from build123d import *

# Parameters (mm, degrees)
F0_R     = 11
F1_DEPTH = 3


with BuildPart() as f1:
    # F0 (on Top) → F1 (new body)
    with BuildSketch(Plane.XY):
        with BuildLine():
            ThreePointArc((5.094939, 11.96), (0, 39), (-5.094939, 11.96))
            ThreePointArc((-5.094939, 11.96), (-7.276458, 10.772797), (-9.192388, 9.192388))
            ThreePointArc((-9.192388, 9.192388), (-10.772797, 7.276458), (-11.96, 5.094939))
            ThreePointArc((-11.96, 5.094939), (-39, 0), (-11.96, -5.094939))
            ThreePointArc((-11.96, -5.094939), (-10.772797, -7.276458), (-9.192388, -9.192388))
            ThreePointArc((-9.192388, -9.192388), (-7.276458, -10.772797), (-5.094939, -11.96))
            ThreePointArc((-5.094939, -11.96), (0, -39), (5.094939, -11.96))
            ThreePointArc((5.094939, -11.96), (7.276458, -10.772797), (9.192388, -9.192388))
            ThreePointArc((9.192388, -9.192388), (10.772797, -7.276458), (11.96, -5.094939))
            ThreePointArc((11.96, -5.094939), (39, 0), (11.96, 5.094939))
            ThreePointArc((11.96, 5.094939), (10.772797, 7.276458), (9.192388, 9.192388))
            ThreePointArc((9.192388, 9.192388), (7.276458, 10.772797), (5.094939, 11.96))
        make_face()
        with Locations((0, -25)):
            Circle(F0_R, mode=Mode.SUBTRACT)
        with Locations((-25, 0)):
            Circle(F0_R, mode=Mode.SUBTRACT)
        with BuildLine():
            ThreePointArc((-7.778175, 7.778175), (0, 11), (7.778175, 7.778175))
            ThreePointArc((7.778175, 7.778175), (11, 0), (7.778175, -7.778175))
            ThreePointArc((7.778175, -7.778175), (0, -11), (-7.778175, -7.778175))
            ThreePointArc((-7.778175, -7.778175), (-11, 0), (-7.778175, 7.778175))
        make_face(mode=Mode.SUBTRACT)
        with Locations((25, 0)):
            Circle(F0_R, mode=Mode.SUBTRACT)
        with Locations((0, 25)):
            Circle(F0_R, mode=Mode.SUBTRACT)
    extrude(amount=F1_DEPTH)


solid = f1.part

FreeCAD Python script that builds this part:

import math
import FreeCAD as App
import Part
import Sketcher
Q = App.Units.Quantity

doc = App.newDocument("Part")
body = doc.addObject("PartDesign::Body", "Body")

sketch1 = body.newObject("Sketcher::SketchObject", "Sketch")
sketch1.AttachmentSupport = (doc.getObject("XY_Plane"), [""])
sketch1.MapMode = "FlatFace"
sketch1.addGeometry([
    Part.ArcOfCircle(Part.Circle(App.Vector(0, 25, 0), App.Vector(0, 0, 1), 14), math.radians(-69), math.radians(249)),
    Part.ArcOfCircle(Part.Circle(App.Vector(0, 0, 0), App.Vector(0, 0, 1), 13), math.radians(113), math.radians(135)),
    Part.ArcOfCircle(Part.Circle(App.Vector(0, 0, 0), App.Vector(0, 0, 1), 13), math.radians(135), math.radians(157)),
    Part.ArcOfCircle(Part.Circle(App.Vector(-25, 0, 0), App.Vector(0, 0, 1), 14), math.radians(21), math.radians(339)),
    Part.ArcOfCircle(Part.Circle(App.Vector(0, 0, 0), App.Vector(0, 0, 1), 13), math.radians(-157), math.radians(-135)),
    Part.ArcOfCircle(Part.Circle(App.Vector(0, 0, 0), App.Vector(0, 0, 1), 13), math.radians(-135), math.radians(-113)),
    Part.ArcOfCircle(Part.Circle(App.Vector(0, -25, 0), App.Vector(0, 0, 1), 14), math.radians(111), math.radians(429)),
    Part.ArcOfCircle(Part.Circle(App.Vector(0, 0, 0), App.Vector(0, 0, 1), 13), math.radians(-67), math.radians(-45)),
    Part.ArcOfCircle(Part.Circle(App.Vector(0, 0, 0), App.Vector(0, 0, 1), 13), math.radians(-45), math.radians(-23)),
    Part.ArcOfCircle(Part.Circle(App.Vector(25, 0, 0), App.Vector(0, 0, 1), 14), math.radians(-159), math.radians(159)),
    Part.ArcOfCircle(Part.Circle(App.Vector(0, 0, 0), App.Vector(0, 0, 1), 13), math.radians(23), math.radians(45)),
    Part.ArcOfCircle(Part.Circle(App.Vector(0, 0, 0), App.Vector(0, 0, 1), 13), math.radians(45), math.radians(67)),
    Part.Circle(App.Vector(0, -25, 0), App.Vector(0, 0, 1), 11),
    Part.Circle(App.Vector(-25, 0, 0), App.Vector(0, 0, 1), 11),
    Part.ArcOfCircle(Part.Circle(App.Vector(0, 0, 0), App.Vector(0, 0, 1), 11), math.radians(135), math.radians(225)),
    Part.ArcOfCircle(Part.Circle(App.Vector(0, 0, 0), App.Vector(0, 0, 1), 11), math.radians(45), math.radians(135)),
    Part.ArcOfCircle(Part.Circle(App.Vector(0, 0, 0), App.Vector(0, 0, 1), 11), math.radians(-45), math.radians(45)),
    Part.ArcOfCircle(Part.Circle(App.Vector(0, 0, 0), App.Vector(0, 0, 1), 11), math.radians(-135), math.radians(-45)),
    Part.Circle(App.Vector(25, 0, 0), App.Vector(0, 0, 1), 11),
    Part.Circle(App.Vector(0, 25, 0), App.Vector(0, 0, 1), 11),
], False)
sketch1.addConstraint([
    Sketcher.Constraint("Coincident", 0, 2, 1, 1),
    Sketcher.Constraint("Tangent", 1, 2, 2, 1),
    Sketcher.Constraint("Coincident", 2, 2, 3, 1),
    Sketcher.Constraint("Coincident", 3, 2, 4, 1),
    Sketcher.Constraint("Tangent", 4, 2, 5, 1),
    Sketcher.Constraint("Coincident", 5, 2, 6, 1),
    Sketcher.Constraint("Coincident", 6, 2, 7, 1),
    Sketcher.Constraint("Tangent", 7, 2, 8, 1),
    Sketcher.Constraint("Coincident", 8, 2, 9, 1),
    Sketcher.Constraint("Coincident", 9, 2, 10, 1),
    Sketcher.Constraint("Tangent", 10, 2, 11, 1),
    Sketcher.Constraint("Coincident", 11, 2, 0, 1),
    Sketcher.Constraint("Tangent", 14, 1, 15, 2),
    Sketcher.Constraint("Tangent", 15, 1, 16, 2),
    Sketcher.Constraint("Tangent", 16, 1, 17, 2),
    Sketcher.Constraint("Tangent", 17, 1, 14, 2),
    Sketcher.Constraint("Coincident", 1, 3, -1, 1),
    Sketcher.Constraint("Coincident", 4, 3, -1, 1),
    Sketcher.Constraint("Coincident", 7, 3, -1, 1),
    Sketcher.Constraint("Coincident", 10, 3, -1, 1),
    Sketcher.Constraint("Coincident", 14, 3, -1, 1),
    Sketcher.Constraint("Coincident", 12, 3, 6, 3),
    Sketcher.Constraint("Coincident", 13, 3, 3, 3),
    Sketcher.Constraint("Coincident", 18, 3, 9, 3),
    Sketcher.Constraint("Coincident", 19, 3, 0, 3),
    Sketcher.Constraint("Equal", 1, 2),
    Sketcher.Constraint("Equal", 0, 3),
    Sketcher.Constraint("Equal", 2, 4),
    Sketcher.Constraint("Equal", 4, 5),
    Sketcher.Constraint("Equal", 3, 6),
    Sketcher.Constraint("Equal", 5, 7),
    Sketcher.Constraint("Equal", 7, 8),
    Sketcher.Constraint("Equal", 6, 9),
    Sketcher.Constraint("Equal", 8, 10),
    Sketcher.Constraint("Equal", 10, 11),
    Sketcher.Constraint("Equal", 12, 13),
    Sketcher.Constraint("Equal", 13, 14),
    Sketcher.Constraint("Equal", 14, 15),
    Sketcher.Constraint("Equal", 17, 18),
    Sketcher.Constraint("Equal", 18, 19),
    Sketcher.Constraint("Symmetric", 0, 3, 6, 3, -1, 1),
    Sketcher.Constraint("Symmetric", 3, 3, 9, 3, -1, 1),
    Sketcher.Constraint("PointOnObject", 0, 3, -2),
    Sketcher.Constraint("PointOnObject", 3, 3, -1),
    Sketcher.Constraint("Horizontal", 4, 2, 7, 2),
    Sketcher.Constraint("Horizontal", 1, 2, 10, 2),
    Sketcher.Constraint("Horizontal", 14, 1, 15, 1),
    Sketcher.Constraint("Horizontal", 16, 1, 17, 1),
    Sketcher.Constraint("Vertical", 1, 2, 4, 2),
    Sketcher.Constraint("Vertical", 15, 1, 16, 1),
    Sketcher.Constraint("Diameter", 12, Q("22 mm")),
    Sketcher.Constraint("Radius", 0, Q("14 mm")),
    Sketcher.Constraint("DistanceY", -1, 1, 0, 3, Q("25 mm")),
    Sketcher.Constraint("DistanceX", 3, 3, -1, 1, Q("25 mm")),
    Sketcher.Constraint("DistanceY", -1, 1, 0, 2, Q("11.96 mm")),
    Sketcher.Constraint("DistanceX", 1, 2, 0, 2, Q("4.097449 mm")),
    Sketcher.Constraint("DistanceX", 14, 1, 7, 3, Q("7.778171 mm")),
])
pad1 = body.newObject("PartDesign::Pad", "Pad")
pad1.Profile = sketch1
pad1.Length = 3

doc.recompute()
